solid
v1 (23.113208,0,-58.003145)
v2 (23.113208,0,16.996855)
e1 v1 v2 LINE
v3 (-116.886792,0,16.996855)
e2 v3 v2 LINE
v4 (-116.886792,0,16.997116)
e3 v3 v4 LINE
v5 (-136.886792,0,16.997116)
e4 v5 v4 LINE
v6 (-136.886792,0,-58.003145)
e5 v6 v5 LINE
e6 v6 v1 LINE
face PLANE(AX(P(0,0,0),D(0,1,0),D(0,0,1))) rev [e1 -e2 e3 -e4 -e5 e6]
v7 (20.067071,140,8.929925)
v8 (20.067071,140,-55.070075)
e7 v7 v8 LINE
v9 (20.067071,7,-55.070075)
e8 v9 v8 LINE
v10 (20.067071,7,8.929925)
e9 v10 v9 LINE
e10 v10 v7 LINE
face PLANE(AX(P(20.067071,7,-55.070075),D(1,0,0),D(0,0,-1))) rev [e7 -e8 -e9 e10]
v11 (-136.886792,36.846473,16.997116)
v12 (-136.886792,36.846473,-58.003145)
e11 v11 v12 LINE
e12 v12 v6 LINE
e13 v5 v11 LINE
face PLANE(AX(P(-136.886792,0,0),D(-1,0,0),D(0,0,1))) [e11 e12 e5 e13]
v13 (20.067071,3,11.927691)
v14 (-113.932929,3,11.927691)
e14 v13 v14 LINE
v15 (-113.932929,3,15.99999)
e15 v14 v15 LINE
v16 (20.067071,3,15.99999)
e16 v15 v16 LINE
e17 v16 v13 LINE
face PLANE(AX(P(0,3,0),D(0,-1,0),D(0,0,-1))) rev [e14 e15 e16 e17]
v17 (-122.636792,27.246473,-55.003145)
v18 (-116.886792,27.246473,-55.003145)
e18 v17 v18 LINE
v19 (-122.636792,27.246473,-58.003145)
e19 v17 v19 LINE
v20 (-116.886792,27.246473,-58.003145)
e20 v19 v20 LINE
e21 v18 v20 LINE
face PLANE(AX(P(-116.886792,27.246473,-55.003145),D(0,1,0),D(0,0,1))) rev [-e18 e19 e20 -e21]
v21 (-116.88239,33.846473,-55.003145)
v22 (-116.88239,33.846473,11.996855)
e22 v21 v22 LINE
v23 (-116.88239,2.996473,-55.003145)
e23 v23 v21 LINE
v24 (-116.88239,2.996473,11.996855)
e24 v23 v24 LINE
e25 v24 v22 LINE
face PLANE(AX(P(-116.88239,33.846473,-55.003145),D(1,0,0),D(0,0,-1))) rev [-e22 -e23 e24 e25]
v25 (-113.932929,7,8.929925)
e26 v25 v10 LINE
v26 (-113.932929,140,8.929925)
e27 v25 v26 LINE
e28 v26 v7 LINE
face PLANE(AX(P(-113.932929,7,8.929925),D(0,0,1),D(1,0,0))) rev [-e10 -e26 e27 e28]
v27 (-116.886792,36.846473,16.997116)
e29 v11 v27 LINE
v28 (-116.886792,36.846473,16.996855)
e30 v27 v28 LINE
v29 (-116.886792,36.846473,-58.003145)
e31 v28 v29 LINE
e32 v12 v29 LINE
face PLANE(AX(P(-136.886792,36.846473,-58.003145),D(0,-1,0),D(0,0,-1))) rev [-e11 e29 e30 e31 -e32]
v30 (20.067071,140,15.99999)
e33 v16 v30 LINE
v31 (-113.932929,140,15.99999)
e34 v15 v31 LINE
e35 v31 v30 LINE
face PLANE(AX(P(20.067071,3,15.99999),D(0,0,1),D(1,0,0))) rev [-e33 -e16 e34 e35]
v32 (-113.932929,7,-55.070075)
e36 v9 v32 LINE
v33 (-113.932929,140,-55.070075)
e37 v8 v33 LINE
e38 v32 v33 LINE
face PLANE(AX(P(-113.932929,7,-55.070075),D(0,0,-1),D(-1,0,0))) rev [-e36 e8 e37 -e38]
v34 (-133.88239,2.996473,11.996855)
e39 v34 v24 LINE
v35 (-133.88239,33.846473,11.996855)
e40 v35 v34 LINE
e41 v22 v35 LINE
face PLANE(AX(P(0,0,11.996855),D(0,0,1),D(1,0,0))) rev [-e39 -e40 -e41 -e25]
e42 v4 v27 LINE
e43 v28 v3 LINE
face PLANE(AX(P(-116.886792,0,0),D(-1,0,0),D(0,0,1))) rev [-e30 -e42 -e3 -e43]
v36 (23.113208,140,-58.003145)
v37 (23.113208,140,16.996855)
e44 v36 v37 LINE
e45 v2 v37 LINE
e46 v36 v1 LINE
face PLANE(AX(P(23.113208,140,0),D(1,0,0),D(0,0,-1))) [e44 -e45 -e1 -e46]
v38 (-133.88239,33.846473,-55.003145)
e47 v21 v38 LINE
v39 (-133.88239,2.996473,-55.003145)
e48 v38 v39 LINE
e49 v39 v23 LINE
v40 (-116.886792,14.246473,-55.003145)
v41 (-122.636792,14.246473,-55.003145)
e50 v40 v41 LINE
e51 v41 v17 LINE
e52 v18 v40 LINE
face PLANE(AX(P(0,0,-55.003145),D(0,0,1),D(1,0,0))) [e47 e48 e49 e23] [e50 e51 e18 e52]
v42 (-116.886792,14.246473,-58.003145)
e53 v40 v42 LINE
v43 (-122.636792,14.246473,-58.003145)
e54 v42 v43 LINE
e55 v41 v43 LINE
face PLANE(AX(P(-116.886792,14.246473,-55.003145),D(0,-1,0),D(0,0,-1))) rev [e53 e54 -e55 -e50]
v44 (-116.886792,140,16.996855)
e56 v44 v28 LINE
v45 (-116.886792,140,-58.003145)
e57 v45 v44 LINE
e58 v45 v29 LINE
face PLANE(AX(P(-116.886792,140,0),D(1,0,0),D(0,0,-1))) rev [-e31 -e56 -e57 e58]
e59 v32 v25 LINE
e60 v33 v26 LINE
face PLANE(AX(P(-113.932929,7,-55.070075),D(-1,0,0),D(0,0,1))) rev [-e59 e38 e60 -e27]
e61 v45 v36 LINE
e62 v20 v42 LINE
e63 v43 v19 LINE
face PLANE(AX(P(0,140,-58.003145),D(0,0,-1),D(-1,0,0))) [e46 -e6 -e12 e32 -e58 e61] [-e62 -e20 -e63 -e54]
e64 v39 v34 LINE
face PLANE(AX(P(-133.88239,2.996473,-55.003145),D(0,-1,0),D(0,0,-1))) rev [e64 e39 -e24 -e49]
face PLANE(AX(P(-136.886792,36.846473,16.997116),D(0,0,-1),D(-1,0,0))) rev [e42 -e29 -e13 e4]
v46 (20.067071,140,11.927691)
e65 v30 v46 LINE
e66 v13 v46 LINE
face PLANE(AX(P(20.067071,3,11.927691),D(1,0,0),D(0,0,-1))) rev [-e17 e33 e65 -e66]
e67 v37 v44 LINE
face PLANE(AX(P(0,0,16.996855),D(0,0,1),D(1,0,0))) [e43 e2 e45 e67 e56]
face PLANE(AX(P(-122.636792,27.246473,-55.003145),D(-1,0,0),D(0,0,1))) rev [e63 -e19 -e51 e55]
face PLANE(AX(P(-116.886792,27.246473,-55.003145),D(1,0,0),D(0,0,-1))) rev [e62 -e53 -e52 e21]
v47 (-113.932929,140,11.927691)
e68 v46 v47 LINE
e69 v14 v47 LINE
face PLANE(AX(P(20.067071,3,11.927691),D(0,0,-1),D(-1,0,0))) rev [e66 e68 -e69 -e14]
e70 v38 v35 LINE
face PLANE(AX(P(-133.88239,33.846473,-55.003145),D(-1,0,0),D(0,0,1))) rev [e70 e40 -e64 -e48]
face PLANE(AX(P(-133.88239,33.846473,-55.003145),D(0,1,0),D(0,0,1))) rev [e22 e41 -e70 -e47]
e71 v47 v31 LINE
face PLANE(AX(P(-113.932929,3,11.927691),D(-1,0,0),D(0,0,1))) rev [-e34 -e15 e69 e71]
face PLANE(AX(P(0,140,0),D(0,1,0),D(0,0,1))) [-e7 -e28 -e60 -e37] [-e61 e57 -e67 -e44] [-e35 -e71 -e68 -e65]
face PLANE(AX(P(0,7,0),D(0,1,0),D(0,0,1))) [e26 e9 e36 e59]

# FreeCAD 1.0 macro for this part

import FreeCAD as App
import Part
import Sketcher


def add_polygon(sketch, points):
    """Adds a closed chain of lines whose ends are joined by coincident constraints."""
    first, n = sketch.GeometryCount, len(points)
    for a, b in zip(points, points[1:] + points[:1]):
        sketch.addGeometry(Part.LineSegment(App.Vector(*a, 0), App.Vector(*b, 0)), False)
    for i in range(n):
        sketch.addConstraint(Sketcher.Constraint("Coincident", first + i, 2, first + (i + 1) % n, 1))

doc = App.newDocument("Part")
body = doc.addObject("PartDesign::Body", "Body")

# Sketch on XZ plane
sketch1 = body.newObject("Sketcher::SketchObject", "Sketch")
sketch1.AttachmentSupport = (doc.getObject("XZ_Plane"), [""])
sketch1.MapMode = "FlatFace"
add_polygon(sketch1, [(-117, -58), (-117, 12), (23, 12), (23, -58)])  # lines 0-3
sketch1.addConstraint(Sketcher.Constraint("Vertical", 0))
sketch1.addConstraint(Sketcher.Constraint("Horizontal", 1))
sketch1.addConstraint(Sketcher.Constraint("Vertical", 2))
sketch1.addConstraint(Sketcher.Constraint("Horizontal", 3))
sketch1.addConstraint(Sketcher.Constraint("DistanceX", 1, 1, 1, 2, 140.0))
sketch1.addConstraint(Sketcher.Constraint("DistanceY", 0, 1, 0, 2, 70.0))
sketch1.addConstraint(Sketcher.Constraint("DistanceX", 0, 2, -1, 1, 116.886792))
sketch1.addConstraint(Sketcher.Constraint("DistanceY", -1, 1, 0, 2, 11.996855))
pad1 = body.newObject("PartDesign::Pad", "Pad")
pad1.Profile = sketch1
pad1.Length = 140
pad1.Reversed = True

# Sketch on XZ plane
sketch2 = body.newObject("Sketcher::SketchObject", "Sketch001")
sketch2.AttachmentSupport = (doc.getObject("XZ_Plane"), [""])
sketch2.MapMode = "FlatFace"
sketch2.AttachmentOffset = App.Placement(App.Vector(0, 0, -140), App.Rotation())
add_polygon(sketch2, [(-114, -55), (-114, 9), (20, 9), (20, -55)])  # lines 0-3
sketch2.addConstraint(Sketcher.Constraint("Vertical", 0))
sketch2.addConstraint(Sketcher.Constraint("Horizontal", 1))
sketch2.addConstraint(Sketcher.Constraint("Vertical", 2))
sketch2.addConstraint(Sketcher.Constraint("Horizontal", 3))
sketch2.addConstraint(Sketcher.Constraint("DistanceX", 1, 1, 1, 2, 134.0))
sketch2.addConstraint(Sketcher.Constraint("DistanceY", 0, 1, 0, 2, 64.0))
sketch2.addConstraint(Sketcher.Constraint("DistanceX", 0, 2, -1, 1, 113.932929))
sketch2.addConstraint(Sketcher.Constraint("DistanceY", -1, 1, 0, 2, 8.929925))
pocket1 = body.newObject("PartDesign::Pocket", "Pocket")
pocket1.Profile = sketch2
pocket1.Length = 133
pocket1.Reversed = True

# Sketch on YZ plane
sketch3 = body.newObject("Sketcher::SketchObject", "Sketch002")
sketch3.AttachmentSupport = (doc.getObject("YZ_Plane"), [""])
sketch3.MapMode = "FlatFace"
sketch3.AttachmentOffset = App.Placement(App.Vector(0, 0, -116.886792), App.Rotation())
add_polygon(sketch3, [(37, -58), (0, -58), (0, 17), (37, 17)])  # lines 0-3
sketch3.addConstraint(Sketcher.Constraint("Horizontal", 0))
sketch3.addConstraint(Sketcher.Constraint("Vertical", 1))
sketch3.addConstraint(Sketcher.Constraint("Horizontal", 2))
sketch3.addConstraint(Sketcher.Constraint("Vertical", 3))
sketch3.addConstraint(Sketcher.Constraint("PointOnObject", 0, 2, -2))
sketch3.addConstraint(Sketcher.Constraint("DistanceY", 1, 1, 1, 2, 75.000261))
sketch3.addConstraint(Sketcher.Constraint("DistanceX", 0, 2, 0, 1, 36.846473))
sketch3.addConstraint(Sketcher.Constraint("DistanceY", 0, 2, -1, 1, 58.003145))
pad2 = body.newObject("PartDesign::Pad", "Pad001")
pad2.Profile = sketch3
pad2.Length = 20
pad2.Reversed = True

# Sketch on XY plane
sketch4 = body.newObject("Sketcher::SketchObject", "Sketch003")
sketch4.AttachmentSupport = (doc.getObject("XY_Plane"), [""])
sketch4.MapMode = "FlatFace"
sketch4.AttachmentOffset = App.Placement(App.Vector(0, 0, -58.003145), App.Rotation())
add_polygon(sketch4, [(-117, 27), (-117, 14), (-123, 14), (-123, 27)])  # lines 0-3
sketch4.addConstraint(Sketcher.Constraint("Vertical", 0))
sketch4.addConstraint(Sketcher.Constraint("Horizontal", 1))
sketch4.addConstraint(Sketcher.Constraint("Vertical", 2))
sketch4.addConstraint(Sketcher.Constraint("Horizontal", 3))
sketch4.addConstraint(Sketcher.Constraint("DistanceY", 0, 2, 0, 1, 13.0))
sketch4.addConstraint(Sketcher.Constraint("DistanceX", 1, 2, 1, 1, 5.75))
sketch4.addConstraint(Sketcher.Constraint("DistanceX", 0, 2, -1, 1, 116.886792))
sketch4.addConstraint(Sketcher.Constraint("DistanceY", -1, 1, 0, 2, 14.246473))
pocket2 = body.newObject("PartDesign::Pocket", "Pocket001")
pocket2.Profile = sketch4
pocket2.Length = 3
pocket2.Reversed = True

# Sketch on XY plane
sketch5 = body.newObject("Sketcher::SketchObject", "Sketch004")
sketch5.AttachmentSupport = (doc.getObject("XY_Plane"), [""])
sketch5.MapMode = "FlatFace"
sketch5.AttachmentOffset = App.Placement(App.Vector(0, 0, 11.996855), App.Rotation())
add_polygon(sketch5, [(-134, 34), (-134, 3), (-117, 3), (-117, 34)])  # lines 0-3
sketch5.addConstraint(Sketcher.Constraint("Vertical", 0))
sketch5.addConstraint(Sketcher.Constraint("Horizontal", 1))
sketch5.addConstraint(Sketcher.Constraint("Vertical", 2))
sketch5.addConstraint(Sketcher.Constraint("Horizontal", 3))
sketch5.addConstraint(Sketcher.Constraint("DistanceX", 1, 1, 1, 2, 17.0))
sketch5.addConstraint(Sketcher.Constraint("DistanceY", 0, 2, 0, 1, 30.85))
sketch5.addConstraint(Sketcher.Constraint("DistanceX", 0, 2, -1, 1, 133.88239))
sketch5.addConstraint(Sketcher.Constraint("DistanceY", -1, 1, 0, 2, 2.996473))
pocket3 = body.newObject("PartDesign::Pocket", "Pocket002")
pocket3.Profile = sketch5
pocket3.Length = 67

# Sketch on XY plane
sketch6 = body.newObject("Sketcher::SketchObject", "Sketch005")
sketch6.AttachmentSupport = (doc.getObject("XY_Plane"), [""])
sketch6.MapMode = "FlatFace"
sketch6.AttachmentOffset = App.Placement(App.Vector(0, 0, 11.996855), App.Rotation())
add_polygon(sketch6, [(-117, 140), (-117, 0), (23, 0), (23, 140)])  # lines 0-3
sketch6.addConstraint(Sketcher.Constraint("Vertical", 0))
sketch6.addConstraint(Sketcher.Constraint("Horizontal", 1))
sketch6.addConstraint(Sketcher.Constraint("Vertical", 2))
sketch6.addConstraint(Sketcher.Constraint("Horizontal", 3))
sketch6.addConstraint(Sketcher.Constraint("PointOnObject", 0, 2, -1))
sketch6.addConstraint(Sketcher.Constraint("Equal", 3, 0))
sketch6.addConstraint(Sketcher.Constraint("DistanceX", 1, 1, 1, 2, 140.0))
sketch6.addConstraint(Sketcher.Constraint("DistanceX", 0, 2, -1, 1, 116.886792))
pad3 = body.newObject("PartDesign::Pad", "Pad002")
pad3.Profile = sketch6
pad3.Length = 5

# Sketch on XZ plane
sketch7 = body.newObject("Sketcher::SketchObject", "Sketch006")
sketch7.AttachmentSupport = (doc.getObject("XZ_Plane"), [""])
sketch7.MapMode = "FlatFace"
sketch7.AttachmentOffset = App.Placement(App.Vector(0, 0, -140), App.Rotation())
add_polygon(sketch7, [(-113.9, 11.9), (-113.9, 16), (20.1, 16), (20.1, 11.9)])  # lines 0-3
sketch7.addConstraint(Sketcher.Constraint("Vertical", 0))
sketch7.addConstraint(Sketcher.Constraint("Horizontal", 1))
sketch7.addConstraint(Sketcher.Constraint("Vertical", 2))
sketch7.addConstraint(Sketcher.Constraint("Horizontal", 3))
sketch7.addConstraint(Sketcher.Constraint("DistanceX", 1, 1, 1, 2, 134.0))
sketch7.addConstraint(Sketcher.Constraint("DistanceY", 0, 1, 0, 2, 4.072298))
sketch7.addConstraint(Sketcher.Constraint("DistanceX", 0, 2, -1, 1, 113.932929))
sketch7.addConstraint(Sketcher.Constraint("DistanceY", -1, 1, 0, 2, 15.99999))
pocket4 = body.newObject("PartDesign::Pocket", "Pocket003")
pocket4.Profile = sketch7
pocket4.Length = 137
pocket4.Reversed = True

doc.recompute()
